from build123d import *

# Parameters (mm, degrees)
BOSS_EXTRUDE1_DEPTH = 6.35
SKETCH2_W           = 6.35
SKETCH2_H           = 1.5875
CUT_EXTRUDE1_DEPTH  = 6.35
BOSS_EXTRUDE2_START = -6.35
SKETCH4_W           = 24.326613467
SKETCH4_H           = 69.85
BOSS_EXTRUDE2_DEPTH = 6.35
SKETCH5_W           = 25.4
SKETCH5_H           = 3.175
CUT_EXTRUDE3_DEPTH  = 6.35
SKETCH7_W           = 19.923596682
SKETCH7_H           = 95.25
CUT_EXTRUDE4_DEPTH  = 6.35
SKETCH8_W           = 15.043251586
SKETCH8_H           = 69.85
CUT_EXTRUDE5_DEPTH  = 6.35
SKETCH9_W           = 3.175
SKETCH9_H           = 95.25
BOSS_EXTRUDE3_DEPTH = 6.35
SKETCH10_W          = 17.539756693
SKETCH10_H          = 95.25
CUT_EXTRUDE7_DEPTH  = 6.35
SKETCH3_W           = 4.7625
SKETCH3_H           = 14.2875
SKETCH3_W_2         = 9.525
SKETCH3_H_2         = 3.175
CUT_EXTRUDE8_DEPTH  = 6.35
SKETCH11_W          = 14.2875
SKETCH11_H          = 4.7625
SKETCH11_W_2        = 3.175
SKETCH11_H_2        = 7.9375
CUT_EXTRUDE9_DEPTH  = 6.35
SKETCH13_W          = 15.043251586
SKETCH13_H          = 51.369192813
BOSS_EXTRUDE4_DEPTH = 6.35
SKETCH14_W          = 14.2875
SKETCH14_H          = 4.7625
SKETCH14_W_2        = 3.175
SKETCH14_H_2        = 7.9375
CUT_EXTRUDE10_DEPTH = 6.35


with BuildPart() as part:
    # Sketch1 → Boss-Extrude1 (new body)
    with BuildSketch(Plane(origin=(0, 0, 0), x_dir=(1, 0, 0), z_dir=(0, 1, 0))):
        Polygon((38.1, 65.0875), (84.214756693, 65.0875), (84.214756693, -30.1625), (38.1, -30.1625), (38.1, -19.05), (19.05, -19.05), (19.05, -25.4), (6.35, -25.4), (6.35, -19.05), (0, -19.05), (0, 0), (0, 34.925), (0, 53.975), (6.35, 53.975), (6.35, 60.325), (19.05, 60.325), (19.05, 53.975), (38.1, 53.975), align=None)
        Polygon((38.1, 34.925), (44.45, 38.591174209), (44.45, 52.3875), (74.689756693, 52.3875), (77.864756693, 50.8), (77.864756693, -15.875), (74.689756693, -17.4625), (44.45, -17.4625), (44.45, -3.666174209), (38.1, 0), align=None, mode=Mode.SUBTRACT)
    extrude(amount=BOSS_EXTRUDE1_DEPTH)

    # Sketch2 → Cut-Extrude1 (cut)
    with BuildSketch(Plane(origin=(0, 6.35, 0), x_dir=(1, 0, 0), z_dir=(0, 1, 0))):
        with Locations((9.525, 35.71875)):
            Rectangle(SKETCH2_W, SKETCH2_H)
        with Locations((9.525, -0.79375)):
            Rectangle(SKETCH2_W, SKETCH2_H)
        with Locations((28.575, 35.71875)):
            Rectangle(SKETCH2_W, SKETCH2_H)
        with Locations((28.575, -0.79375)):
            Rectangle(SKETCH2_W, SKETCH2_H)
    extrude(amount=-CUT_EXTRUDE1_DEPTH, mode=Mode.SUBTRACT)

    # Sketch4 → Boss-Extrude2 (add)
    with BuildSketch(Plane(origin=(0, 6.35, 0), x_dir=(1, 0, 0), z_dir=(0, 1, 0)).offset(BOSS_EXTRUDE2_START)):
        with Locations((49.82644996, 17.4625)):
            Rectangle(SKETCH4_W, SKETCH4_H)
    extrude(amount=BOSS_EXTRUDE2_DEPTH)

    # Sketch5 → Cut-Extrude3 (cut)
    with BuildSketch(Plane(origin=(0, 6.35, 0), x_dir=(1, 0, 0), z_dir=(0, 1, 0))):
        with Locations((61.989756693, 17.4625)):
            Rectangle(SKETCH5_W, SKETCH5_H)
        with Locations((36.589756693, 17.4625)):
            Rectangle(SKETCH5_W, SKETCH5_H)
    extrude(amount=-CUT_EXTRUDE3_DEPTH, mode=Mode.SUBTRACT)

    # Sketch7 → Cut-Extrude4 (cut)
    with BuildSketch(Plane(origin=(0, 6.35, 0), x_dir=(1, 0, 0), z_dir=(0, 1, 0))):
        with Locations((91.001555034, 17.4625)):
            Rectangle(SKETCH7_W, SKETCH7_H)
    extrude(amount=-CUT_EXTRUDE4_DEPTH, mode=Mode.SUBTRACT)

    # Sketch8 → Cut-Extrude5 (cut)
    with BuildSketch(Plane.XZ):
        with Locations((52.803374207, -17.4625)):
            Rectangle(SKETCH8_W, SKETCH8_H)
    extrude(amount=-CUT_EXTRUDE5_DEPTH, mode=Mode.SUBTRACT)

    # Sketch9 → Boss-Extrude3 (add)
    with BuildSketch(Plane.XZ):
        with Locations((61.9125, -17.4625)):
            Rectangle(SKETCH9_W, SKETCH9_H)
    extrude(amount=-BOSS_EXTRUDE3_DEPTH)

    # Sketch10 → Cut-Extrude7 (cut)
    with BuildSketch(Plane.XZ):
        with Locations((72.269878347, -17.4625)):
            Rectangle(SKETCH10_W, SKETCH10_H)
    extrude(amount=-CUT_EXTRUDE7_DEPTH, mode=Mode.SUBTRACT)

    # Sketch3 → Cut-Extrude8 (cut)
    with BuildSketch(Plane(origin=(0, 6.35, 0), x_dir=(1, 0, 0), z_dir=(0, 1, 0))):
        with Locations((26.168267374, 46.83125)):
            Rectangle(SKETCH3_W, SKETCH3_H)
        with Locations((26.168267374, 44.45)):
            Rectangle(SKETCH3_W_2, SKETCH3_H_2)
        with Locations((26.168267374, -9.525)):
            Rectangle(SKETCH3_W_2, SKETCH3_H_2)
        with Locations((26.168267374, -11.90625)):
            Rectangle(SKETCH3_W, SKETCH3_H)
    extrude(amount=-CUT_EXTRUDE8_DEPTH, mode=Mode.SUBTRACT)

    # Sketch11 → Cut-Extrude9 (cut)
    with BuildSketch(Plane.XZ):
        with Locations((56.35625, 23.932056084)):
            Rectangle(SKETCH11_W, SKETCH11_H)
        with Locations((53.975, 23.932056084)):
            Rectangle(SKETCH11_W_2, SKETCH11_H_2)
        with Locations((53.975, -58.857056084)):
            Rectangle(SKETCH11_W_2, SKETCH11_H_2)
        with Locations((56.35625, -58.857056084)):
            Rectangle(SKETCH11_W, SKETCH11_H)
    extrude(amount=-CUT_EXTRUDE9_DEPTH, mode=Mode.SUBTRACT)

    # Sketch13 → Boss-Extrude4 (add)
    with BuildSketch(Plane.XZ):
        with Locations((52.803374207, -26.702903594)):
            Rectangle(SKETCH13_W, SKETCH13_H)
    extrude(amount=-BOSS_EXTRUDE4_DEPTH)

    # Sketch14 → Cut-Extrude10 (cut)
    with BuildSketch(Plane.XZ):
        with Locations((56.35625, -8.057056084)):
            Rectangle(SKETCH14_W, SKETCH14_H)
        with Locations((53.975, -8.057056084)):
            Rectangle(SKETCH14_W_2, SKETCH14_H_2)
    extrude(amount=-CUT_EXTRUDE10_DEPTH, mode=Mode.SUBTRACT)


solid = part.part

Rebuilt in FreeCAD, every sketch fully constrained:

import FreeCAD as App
import Part
import Sketcher
Q = App.Units.Quantity

doc = App.newDocument("Part")
params = doc.addObject("Spreadsheet::Sheet", "Params")
for row, (alias, value) in enumerate([
    ("sketch1_width", "0.5 in"),
    ("sketch1_width2", "0.75 in"),
    ("sketch1_width3", "0.25 in"),
    ("sketch1_height", "3.75 in"),
    ("sketch1_height2", "0.4375 in"),
    ("pad1_length", "0.25 in"),
    ("sketch2_width", "0.25 in"),
    ("sketch2_height", "0.0625 in"),
    ("pocket1_length", "0.25 in"),
    ("sketch3_height", "2.75 in"),
    ("pad2_length", "0.25 in"),
    ("sketch4_width", "2 in"),
    ("sketch4_height", "0.125 in"),
    ("pocket2_length", "0.25 in"),
    ("sketch5_height", "3.75 in"),
    ("pocket3_length", "0.25 in"),
    ("sketch6_height", "2.75 in"),
    ("pocket4_length", "0.25 in"),
    ("sketch7_height", "3.75 in"),
    ("sketch7_width", "0.125 in"),
    ("pad3_length", "0.25 in"),
    ("sketch8_height", "3.75 in"),
    ("pocket5_length", "0.25 in"),
    ("sketch9_width", "0.1875 in"),
    ("sketch9_width2", "0.09375 in"),
    ("sketch9_height", "0.125 in"),
    ("sketch9_height2", "0.3125 in"),
    ("pocket6_length", "0.25 in"),
    ("sketch10_width", "0.125 in"),
    ("sketch10_width2", "0.3125 in"),
    ("sketch10_height", "0.1875 in"),
    ("sketch10_height2", "0.0625 in"),
    ("pocket7_length", "0.25 in"),
    ("pad4_length", "0.25 in"),
    ("sketch12_width", "0.125 in"),
    ("sketch12_width2", "0.3125 in"),
    ("sketch12_height", "0.1875 in"),
    ("sketch12_height2", "0.0625 in"),
    ("pocket8_length", "0.25 in"),
], start=1):
    params.set(f"A{row}", alias)
    params.set(f"B{row}", "=" + value)
    params.setAlias(f"B{row}", alias)

body = doc.addObject("PartDesign::Body", "Body")

sketch1 = body.newObject("Sketcher::SketchObject", "Sketch")
sketch1.AttachmentSupport = (doc.getObject("XZ_Plane"), [""])
sketch1.MapMode = "FlatFace"
sketch1.addGeometry([
    Part.LineSegment(App.Vector(84.2, -65.1, 0), App.Vector(38.1, -65.1, 0)),
    Part.LineSegment(App.Vector(38.1, -65.1, 0), App.Vector(38.1, -54, 0)),
    Part.LineSegment(App.Vector(38.1, -54, 0), App.Vector(19.1, -54, 0)),
    Part.LineSegment(App.Vector(19.1, -54, 0), App.Vector(19.1, -60.3, 0)),
    Part.LineSegment(App.Vector(19.1, -60.3, 0), App.Vector(6.3, -60.3, 0)),
    Part.LineSegment(App.Vector(6.3, -60.3, 0), App.Vector(6.3, -54, 0)),
    Part.LineSegment(App.Vector(6.3, -54, 0), App.Vector(0, -54, 0)),
    Part.LineSegment(App.Vector(0, -54, 0), App.Vector(0, 19.1, 0)),
    Part.LineSegment(App.Vector(0, 19.1, 0), App.Vector(6.3, 19.1, 0)),
    Part.LineSegment(App.Vector(6.3, 19.1, 0), App.Vector(6.3, 25.4, 0)),
    Part.LineSegment(App.Vector(6.3, 25.4, 0), App.Vector(19.1, 25.4, 0)),
    Part.LineSegment(App.Vector(19.1, 25.4, 0), App.Vector(19.1, 19.1, 0)),
    Part.LineSegment(App.Vector(19.1, 19.1, 0), App.Vector(38.1, 19.1, 0)),
    Part.LineSegment(App.Vector(38.1, 19.1, 0), App.Vector(38.1, 30.2, 0)),
    Part.LineSegment(App.Vector(38.1, 30.2, 0), App.Vector(84.2, 30.2, 0)),
    Part.LineSegment(App.Vector(84.2, 30.2, 0), App.Vector(84.2, -65.1, 0)),
    Part.LineSegment(App.Vector(38.1, -34.9, 0), App.Vector(44.5, -38.6, 0)),
    Part.LineSegment(App.Vector(44.5, -38.6, 0), App.Vector(44.5, -52.4, 0)),
    Part.LineSegment(App.Vector(44.5, -52.4, 0), App.Vector(74.7, -52.4, 0)),
    Part.LineSegment(App.Vector(74.7, -52.4, 0), App.Vector(77.9, -50.8, 0)),
    Part.LineSegment(App.Vector(77.9, -50.8, 0), App.Vector(77.9, 15.9, 0)),
    Part.LineSegment(App.Vector(77.9, 15.9, 0), App.Vector(74.7, 17.5, 0)),
    Part.LineSegment(App.Vector(74.7, 17.5, 0), App.Vector(44.5, 17.5, 0)),
    Part.LineSegment(App.Vector(44.5, 17.5, 0), App.Vector(44.5, 3.7, 0)),
    Part.LineSegment(App.Vector(44.5, 3.7, 0), App.Vector(38.1, 0, 0)),
    Part.LineSegment(App.Vector(38.1, 0, 0), App.Vector(38.1, -34.9, 0)),
], False)
sketch1.addConstraint([
    Sketcher.Constraint("Coincident", 0, 2, 1, 1),
    Sketcher.Constraint("Coincident", 1, 2, 2, 1),
    Sketcher.Constraint("Coincident", 2, 2, 3, 1),
    Sketcher.Constraint("Coincident", 3, 2, 4, 1),
    Sketcher.Constraint("Coincident", 4, 2, 5, 1),
    Sketcher.Constraint("Coincident", 5, 2, 6, 1),
    Sketcher.Constraint("Coincident", 6, 2, 7, 1),
    Sketcher.Constraint("Coincident", 7, 2, 8, 1),
    Sketcher.Constraint("Coincident", 8, 2, 9, 1),
    Sketcher.Constraint("Coincident", 9, 2, 10, 1),
    Sketcher.Constraint("Coincident", 10, 2, 11, 1),
    Sketcher.Constraint("Coincident", 11, 2, 12, 1),
    Sketcher.Constraint("Coincident", 12, 2, 13, 1),
    Sketcher.Constraint("Coincident", 13, 2, 14, 1),
    Sketcher.Constraint("Coincident", 14, 2, 15, 1),
    Sketcher.Constraint("Coincident", 15, 2, 0, 1),
    Sketcher.Constraint("Coincident", 16, 2, 17, 1),
    Sketcher.Constraint("Coincident", 17, 2, 18, 1),
    Sketcher.Constraint("Coincident", 18, 2, 19, 1),
    Sketcher.Constraint("Coincident", 19, 2, 20, 1),
    Sketcher.Constraint("Coincident", 20, 2, 21, 1),
    Sketcher.Constraint("Coincident", 21, 2, 22, 1),
    Sketcher.Constraint("Coincident", 22, 2, 23, 1),
    Sketcher.Constraint("Coincident", 23, 2, 24, 1),
    Sketcher.Constraint("Coincident", 24, 2, 25, 1),
    Sketcher.Constraint("Coincident", 25, 2, 16, 1),
    Sketcher.Constraint("Horizontal", 0),
    Sketcher.Constraint("Vertical", 1),
    Sketcher.Constraint("Horizontal", 2),
    Sketcher.Constraint("Vertical", 3),
    Sketcher.Constraint("Horizontal", 4),
    Sketcher.Constraint("Vertical", 5),
    Sketcher.Constraint("Horizontal", 6),
    Sketcher.Constraint("Vertical", 7),
    Sketcher.Constraint("Horizontal", 8),
    Sketcher.Constraint("Vertical", 9),
    Sketcher.Constraint("Horizontal", 10),
    Sketcher.Constraint("Vertical", 11),
    Sketcher.Constraint("Horizontal", 12),
    Sketcher.Constraint("Vertical", 13),
    Sketcher.Constraint("Horizontal", 14),
    Sketcher.Constraint("Vertical", 15),
    Sketcher.Constraint("Vertical", 17),
    Sketcher.Constraint("Horizontal", 18),
    Sketcher.Constraint("Vertical", 20),
    Sketcher.Constraint("Horizontal", 22),
    Sketcher.Constraint("Vertical", 23),
    Sketcher.Constraint("Vertical", 25),
    Sketcher.Constraint("PointOnObject", 6, 2, -2),
    Sketcher.Constraint("PointOnObject", 24, 2, -1),
    Sketcher.Constraint("Horizontal", 2, 2, 5, 2),
    Sketcher.Constraint("Horizontal", 8, 2, 11, 2),
    Sketcher.Constraint("Vertical", 5, 2, 8, 2),
    Sketcher.Constraint("Vertical", 3, 2, 10, 2),
    Sketcher.Constraint("Vertical", 1, 2, 12, 2),
    Sketcher.Constraint("Vertical", 18, 2, 21, 2),
    Sketcher.Constraint("Vertical", 17, 2, 22, 2),
    Sketcher.Constraint("Vertical", 13, 2, 24, 2),
    Sketcher.Constraint("Equal", 8, 3),
    Sketcher.Constraint("Equal", 5, 9),
    Sketcher.Constraint("Equal", 1, 13),
    Sketcher.Constraint("Equal", 17, 23),
    Sketcher.Constraint("Equal", 19, 21),
    Sketcher.Constraint("Equal", 16, 24),
    Sketcher.Constraint("DistanceX", 4, 2, 4, 1, Q("0.5 in")),
    Sketcher.Constraint("DistanceY", -1, 1, 9, 2, Q("1 in")),
    Sketcher.Constraint("DistanceY", 19, 2, -1, 1, Q("2 in")),
    Sketcher.Constraint("Angle", 16, Q("-30 deg")),
    Sketcher.Constraint("DistanceX", 2, 2, 16, 2, Q("1 in")),
    Sketcher.Constraint("DistanceX", 2, 2, 2, 1, Q("0.75 in")),
    Sketcher.Constraint("DistanceX", 6, 2, 6, 1, Q("0.25 in")),
    Sketcher.Constraint("DistanceY", 15, 2, 15, 1, Q("3.75 in")),
    Sketcher.Constraint("DistanceY", 0, 2, 17, 2, Q("0.5 in")),
    Sketcher.Constraint("DistanceY", 21, 2, 14, 2, Q("0.5 in")),
    Sketcher.Constraint("DistanceY", 1, 1, 1, 2, Q("0.4375 in")),
    Sketcher.Constraint("DistanceX", 19, 2, 15, 2, Q("0.25 in")),
    Sketcher.Constraint("DistanceX", 18, 2, 15, 2, Q("0.375 in")),
    Sketcher.Constraint("DistanceX", 0, 2, 0, 1, 46.114757),
])
sketch1.setExpression("Constraints[64]", "Params.sketch1_width")
sketch1.setExpression("Constraints[69]", "Params.sketch1_width2")
sketch1.setExpression("Constraints[70]", "Params.sketch1_width3")
sketch1.setExpression("Constraints[71]", "Params.sketch1_height")
sketch1.setExpression("Constraints[74]", "Params.sketch1_height2")
pad1 = body.newObject("PartDesign::Pad", "Pad")
pad1.Profile = sketch1
pad1.setExpression("Length", "Params.pad1_length")
pad1.Reversed = True

sketch2 = body.newObject("Sketcher::SketchObject", "Sketch001")
sketch2.AttachmentSupport = (doc.getObject("XZ_Plane"), [""])
sketch2.MapMode = "FlatFace"
sketch2.AttachmentOffset = App.Placement(App.Vector(0, 0, -0.25 * 25.4), App.Rotation())
sketch2.addGeometry([
    Part.LineSegment(App.Vector(6.3, -36.5, 0), App.Vector(6.3, -34.9, 0)),
    Part.LineSegment(App.Vector(6.3, -34.9, 0), App.Vector(12.7, -34.9, 0)),
    Part.LineSegment(App.Vector(12.7, -34.9, 0), App.Vector(12.7, -36.5, 0)),
    Part.LineSegment(App.Vector(12.7, -36.5, 0), App.Vector(6.3, -36.5, 0)),
    Part.LineSegment(App.Vector(6.3, 0, 0), App.Vector(6.3, 1.6, 0)),
    Part.LineSegment(App.Vector(6.3, 1.6, 0), App.Vector(12.7, 1.6, 0)),
    Part.LineSegment(App.Vector(12.7, 1.6, 0), App.Vector(12.7, 0, 0)),
    Part.LineSegment(App.Vector(12.7, 0, 0), App.Vector(6.3, 0, 0)),
    Part.LineSegment(App.Vector(25.4, -36.5, 0), App.Vector(25.4, -34.9, 0)),
    Part.LineSegment(App.Vector(25.4, -34.9, 0), App.Vector(31.8, -34.9, 0)),
    Part.LineSegment(App.Vector(31.8, -34.9, 0), App.Vector(31.8, -36.5, 0)),
    Part.LineSegment(App.Vector(31.8, -36.5, 0), App.Vector(25.4, -36.5, 0)),
    Part.LineSegment(App.Vector(25.4, 0, 0), App.Vector(25.4, 1.6, 0)),
    Part.LineSegment(App.Vector(25.4, 1.6, 0), App.Vector(31.8, 1.6, 0)),
    Part.LineSegment(App.Vector(31.8, 1.6, 0), App.Vector(31.8, 0, 0)),
    Part.LineSegment(App.Vector(31.8, 0, 0), App.Vector(25.4, 0, 0)),
], False)
sketch2.addConstraint([
    Sketcher.Constraint("Coincident", 0, 2, 1, 1),
    Sketcher.Constraint("Coincident", 1, 2, 2, 1),
    Sketcher.Constraint("Coincident", 2, 2, 3, 1),
    Sketcher.Constraint("Coincident", 3, 2, 0, 1),
    Sketcher.Constraint("Coincident", 4, 2, 5, 1),
    Sketcher.Constraint("Coincident", 5, 2, 6, 1),
    Sketcher.Constraint("Coincident", 6, 2, 7, 1),
    Sketcher.Constraint("Coincident", 7, 2, 4, 1),
    Sketcher.Constraint("Coincident", 8, 2, 9, 1),
    Sketcher.Constraint("Coincident", 9, 2, 10, 1),
    Sketcher.Constraint("Coincident", 10, 2, 11, 1),
    Sketcher.Constraint("Coincident", 11, 2, 8, 1),
    Sketcher.Constraint("Coincident", 12, 2, 13, 1),
    Sketcher.Constraint("Coincident", 13, 2, 14, 1),
    Sketcher.Constraint("Coincident", 14, 2, 15, 1),
    Sketcher.Constraint("Coincident", 15, 2, 12, 1),
    Sketcher.Constraint("Vertical", 0),
    Sketcher.Constraint("Horizontal", 1),
    Sketcher.Constraint("Vertical", 2),
    Sketcher.Constraint("Horizontal", 3),
    Sketcher.Constraint("Vertical", 4),
    Sketcher.Constraint("Horizontal", 5),
    Sketcher.Constraint("Vertical", 6),
    Sketcher.Constraint("Horizontal", 7),
    Sketcher.Constraint("Vertical", 8),
    Sketcher.Constraint("Horizontal", 9),
    Sketcher.Constraint("Vertical", 10),
    Sketcher.Constraint("Horizontal", 11),
    Sketcher.Constraint("Vertical", 12),
    Sketcher.Constraint("Horizontal", 13),
    Sketcher.Constraint("Vertical", 14),
    Sketcher.Constraint("Horizontal", 15),
    Sketcher.Constraint("PointOnObject", 6, 2, -1),
    Sketcher.Constraint("PointOnObject", 14, 2, -1),
    Sketcher.Constraint("Horizontal", 1, 2, 8, 2),
    Sketcher.Constraint("Horizontal", 3, 2, 10, 2),
    Sketcher.Constraint("Horizontal", 5, 2, 12, 2),
    Sketcher.Constraint("Vertical", 3, 2, 4, 2),
    Sketcher.Constraint("Vertical", 2, 2, 5, 2),
    Sketcher.Constraint("Vertical", 11, 2, 12, 2),
    Sketcher.Constraint("Vertical", 10, 2, 13, 2),
    Sketcher.Constraint("Equal", 7, 9),
    Sketcher.Constraint("Equal", 2, 4),
    Sketcher.Constraint("DistanceX", -1, 1, 8, 2, Q("1 in")),
    Sketcher.Constraint("DistanceX", 0, 2, 9, 2, Q("1 in")),
    Sketcher.Constraint("DistanceX", 1, 1, 1, 2, Q("0.25 in")),
    Sketcher.Constraint("DistanceY", 3, 2, 4, 2, Q("1.5 in")),
    Sketcher.Constraint("DistanceY", 0, 1, 0, 2, Q("0.0625 in")),
])
sketch2.setExpression("Constraints[45]", "Params.sketch2_width")
sketch2.setExpression("Constraints[47]", "Params.sketch2_height")
pocket1 = body.newObject("PartDesign::Pocket", "Pocket")
pocket1.Profile = sketch2
pocket1.setExpression("Length", "Params.pocket1_length")
pocket1.Reversed = True

sketch3 = body.newObject("Sketcher::SketchObject", "Sketch002")
sketch3.AttachmentSupport = (doc.getObject("XZ_Plane"), [""])
sketch3.MapMode = "FlatFace"
sketch3.addGeometry([
    Part.LineSegment(App.Vector(38, -52, 0), App.Vector(38, 17, 0)),
    Part.LineSegment(App.Vector(38, 17, 0), App.Vector(62, 17, 0)),
    Part.LineSegment(App.Vector(62, 17, 0), App.Vector(62, -52, 0)),
    Part.LineSegment(App.Vector(62, -52, 0), App.Vector(38, -52, 0)),
], False)
sketch3.addConstraint([
    Sketcher.Constraint("Coincident", 0, 2, 1, 1),
    Sketcher.Constraint("Coincident", 1, 2, 2, 1),
    Sketcher.Constraint("Coincident", 2, 2, 3, 1),
    Sketcher.Constraint("Coincident", 3, 2, 0, 1),
    Sketcher.Constraint("Vertical", 0),
    Sketcher.Constraint("Horizontal", 1),
    Sketcher.Constraint("Vertical", 2),
    Sketcher.Constraint("Horizontal", 3),
    Sketcher.Constraint("DistanceY", 0, 1, 0, 2, Q("2.75 in")),
    Sketcher.Constraint("DistanceY", -1, 1, 0, 2, Q("0.6875 in")),
    Sketcher.Constraint("DistanceX", 1, 1, 1, 2, 24.326613),
    Sketcher.Constraint("DistanceX", -1, 1, 0, 2, 37.663143),
])
sketch3.setExpression("Constraints[8]", "Params.sketch3_height")
pad2 = body.newObject("PartDesign::Pad", "Pad001")
pad2.Profile = sketch3
pad2.setExpression("Length", "Params.pad2_length")
pad2.Reversed = True

sketch4 = body.newObject("Sketcher::SketchObject", "Sketch003")
sketch4.AttachmentSupport = (doc.getObject("XZ_Plane"), [""])
sketch4.MapMode = "FlatFace"
sketch4.AttachmentOffset = App.Placement(App.Vector(0, 0, -0.25 * 25.4), App.Rotation())
sketch4.addGeometry([
    Part.LineSegment(App.Vector(74.7, -15.9, 0), App.Vector(74.7, -19.1, 0)),
    Part.LineSegment(App.Vector(74.7, -19.1, 0), App.Vector(23.9, -19.1, 0)),
    Part.LineSegment(App.Vector(23.9, -19.1, 0), App.Vector(23.9, -15.9, 0)),
    Part.LineSegment(App.Vector(23.9, -15.9, 0), App.Vector(74.7, -15.9, 0)),
], False)
sketch4.addConstraint([
    Sketcher.Constraint("Coincident", 0, 2, 1, 1),
    Sketcher.Constraint("Coincident", 1, 2, 2, 1),
    Sketcher.Constraint("Coincident", 2, 2, 3, 1),
    Sketcher.Constraint("Coincident", 3, 2, 0, 1),
    Sketcher.Constraint("Vertical", 0),
    Sketcher.Constraint("Horizontal", 1),
    Sketcher.Constraint("Vertical", 2),
    Sketcher.Constraint("Horizontal", 3),
    Sketcher.Constraint("DistanceX", 1, 2, 1, 1, Q("2 in")),
    Sketcher.Constraint("DistanceY", 0, 2, 0, 1, Q("0.125 in")),
    Sketcher.Constraint("DistanceY", 0, 2, -1, 1, Q("0.75 in")),
    Sketcher.Constraint("DistanceX", -1, 1, 0, 2, 74.689757),
])
sketch4.setExpression("Constraints[8]", "Params.sketch4_width")
sketch4.setExpression("Constraints[9]", "Params.sketch4_height")
pocket2 = body.newObject("PartDesign::Pocket", "Pocket001")
pocket2.Profile = sketch4
pocket2.setExpression("Length", "Params.pocket2_length")
pocket2.Reversed = True

sketch5 = body.newObject("Sketcher::SketchObject", "Sketch004")
sketch5.AttachmentSupport = (doc.getObject("XZ_Plane"), [""])
sketch5.MapMode = "FlatFace"
sketch5.AttachmentOffset = App.Placement(App.Vector(0, 0, -0.25 * 25.4), App.Rotation())
sketch5.addGeometry([
    Part.LineSegment(App.Vector(81, -65, 0), App.Vector(81, 30, 0)),
    Part.LineSegment(App.Vector(81, 30, 0), App.Vector(101, 30, 0)),
    Part.LineSegment(App.Vector(101, 30, 0), App.Vector(101, -65, 0)),
    Part.LineSegment(App.Vector(101, -65, 0), App.Vector(81, -65, 0)),
], False)
sketch5.addConstraint([
    Sketcher.Constraint("Coincident", 0, 2, 1, 1),
    Sketcher.Constraint("Coincident", 1, 2, 2, 1),
    Sketcher.Constraint("Coincident", 2, 2, 3, 1),
    Sketcher.Constraint("Coincident", 3, 2, 0, 1),
    Sketcher.Constraint("Vertical", 0),
    Sketcher.Constraint("Horizontal", 1),
    Sketcher.Constraint("Vertical", 2),
    Sketcher.Constraint("Horizontal", 3),
    Sketcher.Constraint("DistanceY", 0, 1, 0, 2, Q("3.75 in")),
    Sketcher.Constraint("DistanceY", -1, 1, 0, 2, Q("1.1875 in")),
    Sketcher.Constraint("DistanceX", 1, 1, 1, 2, 19.923597),
    Sketcher.Constraint("DistanceX", -1, 1, 0, 2, 81.039757),
])
sketch5.setExpression("Constraints[8]", "Params.sketch5_height")
pocket3 = body.newObject("PartDesign::Pocket", "Pocket002")
pocket3.Profile = sketch5
pocket3.setExpression("Length", "Params.pocket3_length")
pocket3.Reversed = True

sketch6 = body.newObject("Sketcher::SketchObject", "Sketch005")
sketch6.AttachmentSupport = (doc.getObject("XZ_Plane"), [""])
sketch6.MapMode = "FlatFace"
sketch6.addGeometry([
    Part.LineSegment(App.Vector(45, 17, 0), App.Vector(45, -52, 0)),
    Part.LineSegment(App.Vector(45, -52, 0), App.Vector(60, -52, 0)),
    Part.LineSegment(App.Vector(60, -52, 0), App.Vector(60, 17, 0)),
    Part.LineSegment(App.Vector(60, 17, 0), App.Vector(45, 17, 0)),
], False)
sketch6.addConstraint([
    Sketcher.Constraint("Coincident", 0, 2, 1, 1),
    Sketcher.Constraint("Coincident", 1, 2, 2, 1),
    Sketcher.Constraint("Coincident", 2, 2, 3, 1),
    Sketcher.Constraint("Coincident", 3, 2, 0, 1),
    Sketcher.Constraint("Vertical", 0),
    Sketcher.Constraint("Horizontal", 1),
    Sketcher.Constraint("Vertical", 2),
    Sketcher.Constraint("Horizontal", 3),
    Sketcher.Constraint("DistanceY", 0, 2, 0, 1, Q("2.75 in")),
    Sketcher.Constraint("DistanceY", 0, 2, -1, 1, Q("2.0625 in")),
    Sketcher.Constraint("DistanceX", -1, 1, 1, 2, Q("2.375 in")),
    Sketcher.Constraint("DistanceX", 1, 1, 1, 2, 15.043252),
])
sketch6.setExpression("Constraints[8]", "Params.sketch6_height")
pocket4 = body.newObject("PartDesign::Pocket", "Pocket003")
pocket4.Profile = sketch6
pocket4.setExpression("Length", "Params.pocket4_length")

sketch7 = body.newObject("Sketcher::SketchObject", "Sketch006")
sketch7.AttachmentSupport = (doc.getObject("XZ_Plane"), [""])
sketch7.MapMode = "FlatFace"
sketch7.addGeometry([
    Part.LineSegment(App.Vector(60.3, 30.2, 0), App.Vector(60.3, -65.1, 0)),
    Part.LineSegment(App.Vector(60.3, -65.1, 0), App.Vector(63.5, -65.1, 0)),
    Part.LineSegment(App.Vector(63.5, -65.1, 0), App.Vector(63.5, 30.2, 0)),
    Part.LineSegment(App.Vector(63.5, 30.2, 0), App.Vector(60.3, 30.2, 0)),
], False)
sketch7.addConstraint([
    Sketcher.Constraint("Coincident", 0, 2, 1, 1),
    Sketcher.Constraint("Coincident", 1, 2, 2, 1),
    Sketcher.Constraint("Coincident", 2, 2, 3, 1),
    Sketcher.Constraint("Coincident", 3, 2, 0, 1),
    Sketcher.Constraint("Vertical", 0),
    Sketcher.Constraint("Horizontal", 1),
    Sketcher.Constraint("Vertical", 2),
    Sketcher.Constraint("Horizontal", 3),
    Sketcher.Constraint("DistanceY", 0, 2, 0, 1, Q("3.75 in")),
    Sketcher.Constraint("DistanceX", -1, 1, 1, 2, Q("2.5 in")),
    Sketcher.Constraint("DistanceX", 1, 1, 1, 2, Q("0.125 in")),
    Sketcher.Constraint("DistanceY", 0, 2, -1, 1, Q("2.5625 in")),
])
sketch7.setExpression("Constraints[8]", "Params.sketch7_height")
sketch7.setExpression("Constraints[10]", "Params.sketch7_width")
pad3 = body.newObject("PartDesign::Pad", "Pad002")
pad3.Profile = sketch7
pad3.setExpression("Length", "Params.pad3_length")
pad3.Reversed = True

sketch8 = body.newObject("Sketcher::SketchObject", "Sketch007")
sketch8.AttachmentSupport = (doc.getObject("XZ_Plane"), [""])
sketch8.MapMode = "FlatFace"
sketch8.addGeometry([
    Part.LineSegment(App.Vector(64, 30, 0), App.Vector(64, -65, 0)),
    Part.LineSegment(App.Vector(64, -65, 0), App.Vector(81, -65, 0)),
    Part.LineSegment(App.Vector(81, -65, 0), App.Vector(81, 30, 0)),
    Part.LineSegment(App.Vector(81, 30, 0), App.Vector(64, 30, 0)),
], False)
sketch8.addConstraint([
    Sketcher.Constraint("Coincident", 0, 2, 1, 1),
    Sketcher.Constraint("Coincident", 1, 2, 2, 1),
    Sketcher.Constraint("Coincident", 2, 2, 3, 1),
    Sketcher.Constraint("Coincident", 3, 2, 0, 1),
    Sketcher.Constraint("Vertical", 0),
    Sketcher.Constraint("Horizontal", 1),
    Sketcher.Constraint("Vertical", 2),
    Sketcher.Constraint("Horizontal", 3),
    Sketcher.Constraint("DistanceY", 0, 2, 0, 1, Q("3.75 in")),
    Sketcher.Constraint("DistanceX", -1, 1, 0, 2, Q("2.5 in")),
    Sketcher.Constraint("DistanceY", 0, 2, -1, 1, Q("2.5625 in")),
    Sketcher.Constraint("DistanceX", 1, 1, 1, 2, 17.539757),
])
sketch8.setExpression("Constraints[8]", "Params.sketch8_height")
pocket5 = body.newObject("PartDesign::Pocket", "Pocket004")
pocket5.Profile = sketch8
pocket5.setExpression("Length", "Params.pocket5_length")

sketch9 = body.newObject("Sketcher::SketchObject", "Sketch008")
sketch9.AttachmentSupport = (doc.getObject("XZ_Plane"), [""])
sketch9.MapMode = "FlatFace"
sketch9.AttachmentOffset = App.Placement(App.Vector(0, 0, -0.25 * 25.4), App.Rotation())
sketch9.addGeometry([
    Part.LineSegment(App.Vector(23.8, -42.9, 0), App.Vector(23.8, -39.7, 0)),
    Part.LineSegment(App.Vector(23.8, -39.7, 0), App.Vector(28.5, -39.7, 0)),
    Part.LineSegment(App.Vector(28.5, -39.7, 0), App.Vector(28.5, -42.9, 0)),
    Part.LineSegment(App.Vector(28.5, -42.9, 0), App.Vector(30.9, -42.9, 0)),
    Part.LineSegment(App.Vector(30.9, -42.9, 0), App.Vector(30.9, -46, 0)),
    Part.LineSegment(App.Vector(30.9, -46, 0), App.Vector(28.5, -46, 0)),
    Part.LineSegment(App.Vector(28.5, -46, 0), App.Vector(28.5, -54, 0)),
    Part.LineSegment(App.Vector(28.5, -54, 0), App.Vector(23.8, -54, 0)),
    Part.LineSegment(App.Vector(23.8, -54, 0), App.Vector(23.8, -46, 0)),
    Part.LineSegment(App.Vector(23.8, -46, 0), App.Vector(21.4, -46, 0)),
    Part.LineSegment(App.Vector(21.4, -46, 0), App.Vector(21.4, -42.9, 0)),
    Part.LineSegment(App.Vector(21.4, -42.9, 0), App.Vector(23.8, -42.9, 0)),
    Part.LineSegment(App.Vector(21.4, 7.9, 0), App.Vector(21.4, 11.1, 0)),
    Part.LineSegment(App.Vector(21.4, 11.1, 0), App.Vector(23.8, 11.1, 0)),
    Part.LineSegment(App.Vector(23.8, 11.1, 0), App.Vector(23.8, 19.1, 0)),
    Part.LineSegment(App.Vector(23.8, 19.1, 0), App.Vector(28.5, 19.1, 0)),
    Part.LineSegment(App.Vector(28.5, 19.1, 0), App.Vector(28.5, 11.1, 0)),
    Part.LineSegment(App.Vector(28.5, 11.1, 0), App.Vector(30.9, 11.1, 0)),
    Part.LineSegment(App.Vector(30.9, 11.1, 0), App.Vector(30.9, 7.9, 0)),
    Part.LineSegment(App.Vector(30.9, 7.9, 0), App.Vector(28.5, 7.9, 0)),
    Part.LineSegment(App.Vector(28.5, 7.9, 0), App.Vector(28.5, 4.8, 0)),
    Part.LineSegment(App.Vector(28.5, 4.8, 0), App.Vector(23.8, 4.8, 0)),
    Part.LineSegment(App.Vector(23.8, 4.8, 0), App.Vector(23.8, 7.9, 0)),
    Part.LineSegment(App.Vector(23.8, 7.9, 0), App.Vector(21.4, 7.9, 0)),
], False)
sketch9.addConstraint([
    Sketcher.Constraint("Coincident", 0, 2, 1, 1),
    Sketcher.Constraint("Coincident", 1, 2, 2, 1),
    Sketcher.Constraint("Coincident", 2, 2, 3, 1),
    Sketcher.Constraint("Coincident", 3, 2, 4, 1),
    Sketcher.Constraint("Coincident", 4, 2, 5, 1),
    Sketcher.Constraint("Coincident", 5, 2, 6, 1),
    Sketcher.Constraint("Coincident", 6, 2, 7, 1),
    Sketcher.Constraint("Coincident", 7, 2, 8, 1),
    Sketcher.Constraint("Coincident", 8, 2, 9, 1),
    Sketcher.Constraint("Coincident", 9, 2, 10, 1),
    Sketcher.Constraint("Coincident", 10, 2, 11, 1),
    Sketcher.Constraint("Coincident", 11, 2, 0, 1),
    Sketcher.Constraint("Coincident", 12, 2, 13, 1),
    Sketcher.Constraint("Coincident", 13, 2, 14, 1),
    Sketcher.Constraint("Coincident", 14, 2, 15, 1),
    Sketcher.Constraint("Coincident", 15, 2, 16, 1),
    Sketcher.Constraint("Coincident", 16, 2, 17, 1),
    Sketcher.Constraint("Coincident", 17, 2, 18, 1),
    Sketcher.Constraint("Coincident", 18, 2, 19, 1),
    Sketcher.Constraint("Coincident", 19, 2, 20, 1),
    Sketcher.Constraint("Coincident", 20, 2, 21, 1),
    Sketcher.Constraint("Coincident", 21, 2, 22, 1),
    Sketcher.Constraint("Coincident", 22, 2, 23, 1),
    Sketcher.Constraint("Coincident", 23, 2, 12, 1),
    Sketcher.Constraint("Vertical", 0),
    Sketcher.Constraint("Horizontal", 1),
    Sketcher.Constraint("Vertical", 2),
    Sketcher.Constraint("Horizontal", 3),
    Sketcher.Constraint("Vertical", 4),
    Sketcher.Constraint("Horizontal", 5),
    Sketcher.Constraint("Vertical", 6),
    Sketcher.Constraint("Horizontal", 7),
    Sketcher.Constraint("Vertical", 8),
    Sketcher.Constraint("Horizontal", 9),
    Sketcher.Constraint("Vertical", 10),
    Sketcher.Constraint("Horizontal", 11),
    Sketcher.Constraint("Vertical", 12),
    Sketcher.Constraint("Horizontal", 13),
    Sketcher.Constraint("Vertical", 14),
    Sketcher.Constraint("Horizontal", 15),
    Sketcher.Constraint("Vertical", 16),
    Sketcher.Constraint("Horizontal", 17),
    Sketcher.Constraint("Vertical", 18),
    Sketcher.Constraint("Horizontal", 19),
    Sketcher.Constraint("Vertical", 20),
    Sketcher.Constraint("Horizontal", 21),
    Sketcher.Constraint("Vertical", 22),
    Sketcher.Constraint("Horizontal", 23),
    Sketcher.Constraint("Horizontal", 5, 2, 8, 2),
    Sketcher.Constraint("Horizontal", 3, 2, 10, 2),
    Sketcher.Constraint("Horizontal", 13, 2, 16, 2),
    Sketcher.Constraint("Horizontal", 19, 2, 22, 2),
    Sketcher.Constraint("Vertical", 2, 2, 5, 2),
    Sketcher.Constraint("Vertical", 0, 2, 7, 2),
    Sketcher.Constraint("Vertical", 10, 2, 12, 2),
    Sketcher.Constraint("Vertical", 11, 2, 13, 2),
    Sketcher.Constraint("Vertical", 6, 2, 15, 2),
    Sketcher.Constraint("Vertical", 4, 2, 17, 2),
    Sketcher.Constraint("Vertical", 16, 2, 19, 2),
    Sketcher.Constraint("Vertical", 14, 2, 21, 2),
    Sketcher.Constraint("Equal", 5, 9),
    Sketcher.Constraint("Equal", 2, 4),
    Sketcher.Constraint("Equal", 10, 12),
    Sketcher.Constraint("Equal", 8, 14),
    Sketcher.Constraint("Equal", 18, 20),
    Sketcher.Constraint("DistanceY", 0, 2, 12, 2, Q("2 in")),
    Sketcher.Constraint("DistanceX", 1, 1, 1, 2, Q("0.1875 in")),
    Sketcher.Constraint("DistanceX", 3, 1, 3, 2, Q("0.09375 in")),
    Sketcher.Constraint("DistanceY", 0, 1, 0, 2, Q("0.125 in")),
    Sketcher.Constraint("DistanceY", 6, 2, 6, 1, Q("0.3125 in")),
    Sketcher.Constraint("DistanceY", -1, 1, 14, 2, Q("0.75 in")),
    Sketcher.Constraint("DistanceX", -1, 1, 0, 2, 23.787017),
])
sketch9.setExpression("Constraints[66]", "Params.sketch9_width")
sketch9.setExpression("Constraints[67]", "Params.sketch9_width2")
sketch9.setExpression("Constraints[68]", "Params.sketch9_height")
sketch9.setExpression("Constraints[69]", "Params.sketch9_height2")
pocket6 = body.newObject("PartDesign::Pocket", "Pocket005")
pocket6.Profile = sketch9
pocket6.setExpression("Length", "Params.pocket6_length")
pocket6.Reversed = True

sketch10 = body.newObject("Sketcher::SketchObject", "Sketch009")
sketch10.AttachmentSupport = (doc.getObject("XZ_Plane"), [""])
sketch10.MapMode = "FlatFace"
sketch10.addGeometry([
    Part.LineSegment(App.Vector(49.2, 26.3, 0), App.Vector(49.2, 21.6, 0)),
    Part.LineSegment(App.Vector(49.2, 21.6, 0), App.Vector(52.4, 21.6, 0)),
    Part.LineSegment(App.Vector(52.4, 21.6, 0), App.Vector(52.4, 20, 0)),
    Part.LineSegment(App.Vector(52.4, 20, 0), App.Vector(55.6, 20, 0)),
    Part.LineSegment(App.Vector(55.6, 20, 0), App.Vector(55.6, 21.6, 0)),
    Part.LineSegment(App.Vector(55.6, 21.6, 0), App.Vector(63.5, 21.6, 0)),
    Part.LineSegment(App.Vector(63.5, 21.6, 0), App.Vector(63.5, 26.3, 0)),
    Part.LineSegment(App.Vector(63.5, 26.3, 0), App.Vector(55.6, 26.3, 0)),
    Part.LineSegment(App.Vector(55.6, 26.3, 0), App.Vector(55.6, 27.9, 0)),
    Part.LineSegment(App.Vector(55.6, 27.9, 0), App.Vector(52.4, 27.9, 0)),
    Part.LineSegment(App.Vector(52.4, 27.9, 0), App.Vector(52.4, 26.3, 0)),
    Part.LineSegment(App.Vector(52.4, 26.3, 0), App.Vector(49.2, 26.3, 0)),
    Part.LineSegment(App.Vector(52.4, -61.2, 0), App.Vector(52.4, -62.8, 0)),
    Part.LineSegment(App.Vector(52.4, -62.8, 0), App.Vector(55.6, -62.8, 0)),
    Part.LineSegment(App.Vector(55.6, -62.8, 0), App.Vector(55.6, -61.2, 0)),
    Part.LineSegment(App.Vector(55.6, -61.2, 0), App.Vector(63.5, -61.2, 0)),
    Part.LineSegment(App.Vector(63.5, -61.2, 0), App.Vector(63.5, -56.5, 0)),
    Part.LineSegment(App.Vector(63.5, -56.5, 0), App.Vector(55.6, -56.5, 0)),
    Part.LineSegment(App.Vector(55.6, -56.5, 0), App.Vector(55.6, -54.9, 0)),
    Part.LineSegment(App.Vector(55.6, -54.9, 0), App.Vector(52.4, -54.9, 0)),
    Part.LineSegment(App.Vector(52.4, -54.9, 0), App.Vector(52.4, -56.5, 0)),
    Part.LineSegment(App.Vector(52.4, -56.5, 0), App.Vector(49.2, -56.5, 0)),
    Part.LineSegment(App.Vector(49.2, -56.5, 0), App.Vector(49.2, -61.2, 0)),
    Part.LineSegment(App.Vector(49.2, -61.2, 0), App.Vector(52.4, -61.2, 0)),
], False)
sketch10.addConstraint([
    Sketcher.Constraint("Coincident", 0, 2, 1, 1),
    Sketcher.Constraint("Coincident", 1, 2, 2, 1),
    Sketcher.Constraint("Coincident", 2, 2, 3, 1),
    Sketcher.Constraint("Coincident", 3, 2, 4, 1),
    Sketcher.Constraint("Coincident", 4, 2, 5, 1),
    Sketcher.Constraint("Coincident", 5, 2, 6, 1),
    Sketcher.Constraint("Coincident", 6, 2, 7, 1),
    Sketcher.Constraint("Coincident", 7, 2, 8, 1),
    Sketcher.Constraint("Coincident", 8, 2, 9, 1),
    Sketcher.Constraint("Coincident", 9, 2, 10, 1),
    Sketcher.Constraint("Coincident", 10, 2, 11, 1),
    Sketcher.Constraint("Coincident", 11, 2, 0, 1),
    Sketcher.Constraint("Coincident", 12, 2, 13, 1),
    Sketcher.Constraint("Coincident", 13, 2, 14, 1),
    Sketcher.Constraint("Coincident", 14, 2, 15, 1),
    Sketcher.Constraint("Coincident", 15, 2, 16, 1),
    Sketcher.Constraint("Coincident", 16, 2, 17, 1),
    Sketcher.Constraint("Coincident", 17, 2, 18, 1),
    Sketcher.Constraint("Coincident", 18, 2, 19, 1),
    Sketcher.Constraint("Coincident", 19, 2, 20, 1),
    Sketcher.Constraint("Coincident", 20, 2, 21, 1),
    Sketcher.Constraint("Coincident", 21, 2, 22, 1),
    Sketcher.Constraint("Coincident", 22, 2, 23, 1),
    Sketcher.Constraint("Coincident", 23, 2, 12, 1),
    Sketcher.Constraint("Vertical", 0),
    Sketcher.Constraint("Horizontal", 1),
    Sketcher.Constraint("Vertical", 2),
    Sketcher.Constraint("Horizontal", 3),
    Sketcher.Constraint("Vertical", 4),
    Sketcher.Constraint("Horizontal", 5),
    Sketcher.Constraint("Vertical", 6),
    Sketcher.Constraint("Horizontal", 7),
    Sketcher.Constraint("Vertical", 8),
    Sketcher.Constraint("Horizontal", 9),
    Sketcher.Constraint("Vertical", 10),
    Sketcher.Constraint("Horizontal", 11),
    Sketcher.Constraint("Vertical", 12),
    Sketcher.Constraint("Horizontal", 13),
    Sketcher.Constraint("Vertical", 14),
    Sketcher.Constraint("Horizontal", 15),
    Sketcher.Constraint("Vertical", 16),
    Sketcher.Constraint("Horizontal", 17),
    Sketcher.Constraint("Vertical", 18),
    Sketcher.Constraint("Horizontal", 19),
    Sketcher.Constraint("Vertical", 20),
    Sketcher.Constraint("Horizontal", 21),
    Sketcher.Constraint("Vertical", 22),
    Sketcher.Constraint("Horizontal", 23),
    Sketcher.Constraint("Horizontal", 1, 2, 4, 2),
    Sketcher.Constraint("Horizontal", 7, 2, 10, 2),
    Sketcher.Constraint("Horizontal", 17, 2, 20, 2),
    Sketcher.Constraint("Horizontal", 15, 2, 22, 2),
    Sketcher.Constraint("Vertical", 4, 2, 7, 2),
    Sketcher.Constraint("Vertical", 2, 2, 9, 2),
    Sketcher.Constraint("Vertical", 10, 2, 12, 2),
    Sketcher.Constraint("Vertical", 8, 2, 13, 2),
    Sketcher.Constraint("Vertical", 6, 2, 15, 2),
    Sketcher.Constraint("Vertical", 14, 2, 17, 2),
    Sketcher.Constraint("Vertical", 12, 2, 19, 2),
    Sketcher.Constraint("Vertical", 11, 2, 21, 2),
    Sketcher.Constraint("Equal", 1, 3),
    Sketcher.Constraint("Equal", 4, 8),
    Sketcher.Constraint("Equal", 10, 12),
    Sketcher.Constraint("Equal", 6, 16),
    Sketcher.Constraint("Equal", 14, 18),
    Sketcher.Constraint("DistanceX", -1, 1, 5, 2, Q("2.5 in")),
    Sketcher.Constraint("DistanceX", 1, 1, 1, 2, Q("0.125 in")),
    Sketcher.Constraint("DistanceX", 5, 1, 5, 2, Q("0.3125 in")),
    Sketcher.Constraint("DistanceY", 0, 2, 0, 1, Q("0.1875 in")),
    Sketcher.Constraint("DistanceY", 2, 2, 2, 1, Q("0.0625 in")),
    Sketcher.Constraint("DistanceY", -1, 1, 0, 2, 21.550806),
    Sketcher.Constraint("DistanceY", 12, 2, -1, 1, 62.825806),
])
sketch10.setExpression("Constraints[66]", "Params.sketch10_width")
sketch10.setExpression("Constraints[67]", "Params.sketch10_width2")
sketch10.setExpression("Constraints[68]", "Params.sketch10_height")
sketch10.setExpression("Constraints[69]", "Params.sketch10_height2")
pocket7 = body.newObject("PartDesign::Pocket", "Pocket006")
pocket7.Profile = sketch10
pocket7.setExpression("Length", "Params.pocket7_length")

sketch11 = body.newObject("Sketcher::SketchObject", "Sketch010")
sketch11.AttachmentSupport = (doc.getObject("XZ_Plane"), [""])
sketch11.MapMode = "FlatFace"
sketch11.addGeometry([
    Part.LineSegment(App.Vector(45, -1, 0), App.Vector(45, -52, 0)),
    Part.LineSegment(App.Vector(45, -52, 0), App.Vector(60, -52, 0)),
    Part.LineSegment(App.Vector(60, -52, 0), App.Vector(60, -1, 0)),
    Part.LineSegment(App.Vector(60, -1, 0), App.Vector(45, -1, 0)),
], False)
sketch11.addConstraint([
    Sketcher.Constraint("Coincident", 0, 2, 1, 1),
    Sketcher.Constraint("Coincident", 1, 2, 2, 1),
    Sketcher.Constraint("Coincident", 2, 2, 3, 1),
    Sketcher.Constraint("Coincident", 3, 2, 0, 1),
    Sketcher.Constraint("Vertical", 0),
    Sketcher.Constraint("Horizontal", 1),
    Sketcher.Constraint("Vertical", 2),
    Sketcher.Constraint("Horizontal", 3),
    Sketcher.Constraint("DistanceY", 0, 2, -1, 1, Q("2.0625 in")),
    Sketcher.Constraint("DistanceX", -1, 1, 1, 2, Q("2.375 in")),
    Sketcher.Constraint("DistanceX", 1, 1, 1, 2, 15.043252),
    Sketcher.Constraint("DistanceY", 0, 2, 0, 1, 51.369193),
])
pad4 = body.newObject("PartDesign::Pad", "Pad003")
pad4.Profile = sketch11
pad4.setExpression("Length", "Params.pad4_length")
pad4.Reversed = True

sketch12 = body.newObject("Sketcher::SketchObject", "Sketch011")
sketch12.AttachmentSupport = (doc.getObject("XZ_Plane"), [""])
sketch12.MapMode = "FlatFace"
sketch12.addGeometry([
    Part.LineSegment(App.Vector(49.2, -5.7, 0), App.Vector(49.2, -10.4, 0)),
    Part.LineSegment(App.Vector(49.2, -10.4, 0), App.Vector(52.4, -10.4, 0)),
    Part.LineSegment(App.Vector(52.4, -10.4, 0), App.Vector(52.4, -12, 0)),
    Part.LineSegment(App.Vector(52.4, -12, 0), App.Vector(55.6, -12, 0)),
    Part.LineSegment(App.Vector(55.6, -12, 0), App.Vector(55.6, -10.4, 0)),
    Part.LineSegment(App.Vector(55.6, -10.4, 0), App.Vector(63.5, -10.4, 0)),
    Part.LineSegment(App.Vector(63.5, -10.4, 0), App.Vector(63.5, -5.7, 0)),
    Part.LineSegment(App.Vector(63.5, -5.7, 0), App.Vector(55.6, -5.7, 0)),
    Part.LineSegment(App.Vector(55.6, -5.7, 0), App.Vector(55.6, -4.1, 0)),
    Part.LineSegment(App.Vector(55.6, -4.1, 0), App.Vector(52.4, -4.1, 0)),
    Part.LineSegment(App.Vector(52.4, -4.1, 0), App.Vector(52.4, -5.7, 0)),
    Part.LineSegment(App.Vector(52.4, -5.7, 0), App.Vector(49.2, -5.7, 0)),
], False)
sketch12.addConstraint([
    Sketcher.Constraint("Coincident", 0, 2, 1, 1),
    Sketcher.Constraint("Coincident", 1, 2, 2, 1),
    Sketcher.Constraint("Coincident", 2, 2, 3, 1),
    Sketcher.Constraint("Coincident", 3, 2, 4, 1),
    Sketcher.Constraint("Coincident", 4, 2, 5, 1),
    Sketcher.Constraint("Coincident", 5, 2, 6, 1),
    Sketcher.Constraint("Coincident", 6, 2, 7, 1),
    Sketcher.Constraint("Coincident", 7, 2, 8, 1),
    Sketcher.Constraint("Coincident", 8, 2, 9, 1),
    Sketcher.Constraint("Coincident", 9, 2, 10, 1),
    Sketcher.Constraint("Coincident", 10, 2, 11, 1),
    Sketcher.Constraint("Coincident", 11, 2, 0, 1),
    Sketcher.Constraint("Vertical", 0),
    Sketcher.Constraint("Horizontal", 1),
    Sketcher.Constraint("Vertical", 2),
    Sketcher.Constraint("Horizontal", 3),
    Sketcher.Constraint("Vertical", 4),
    Sketcher.Constraint("Horizontal", 5),
    Sketcher.Constraint("Vertical", 6),
    Sketcher.Constraint("Horizontal", 7),
    Sketcher.Constraint("Vertical", 8),
    Sketcher.Constraint("Horizontal", 9),
    Sketcher.Constraint("Vertical", 10),
    Sketcher.Constraint("Horizontal", 11),
    Sketcher.Constraint("Horizontal", 1, 2, 4, 2),
    Sketcher.Constraint("Horizontal", 7, 2, 10, 2),
    Sketcher.Constraint("Vertical", 4, 2, 7, 2),
    Sketcher.Constraint("Vertical", 2, 2, 9, 2),
    Sketcher.Constraint("Equal", 1, 3),
    Sketcher.Constraint("Equal", 4, 8),
    Sketcher.Constraint("DistanceX", -1, 1, 5, 2, Q("2.5 in")),
    Sketcher.Constraint("DistanceX", 1, 1, 1, 2, Q("0.125 in")),
    Sketcher.Constraint("DistanceX", 5, 1, 5, 2, Q("0.3125 in")),
    Sketcher.Constraint("DistanceY", 0, 2, 0, 1, Q("0.1875 in")),
    Sketcher.Constraint("DistanceY", 2, 2, 2, 1, Q("0.0625 in")),
    Sketcher.Constraint("DistanceY", 0, 2, -1, 1, 10.438306),
])
sketch12.setExpression("Constraints[31]", "Params.sketch12_width")
sketch12.setExpression("Constraints[32]", "Params.sketch12_width2")
sketch12.setExpression("Constraints[33]", "Params.sketch12_height")
sketch12.setExpression("Constraints[34]", "Params.sketch12_height2")
pocket8 = body.newObject("PartDesign::Pocket", "Pocket007")
pocket8.Profile = sketch12
pocket8.setExpression("Length", "Params.pocket8_length")

doc.recompute()
